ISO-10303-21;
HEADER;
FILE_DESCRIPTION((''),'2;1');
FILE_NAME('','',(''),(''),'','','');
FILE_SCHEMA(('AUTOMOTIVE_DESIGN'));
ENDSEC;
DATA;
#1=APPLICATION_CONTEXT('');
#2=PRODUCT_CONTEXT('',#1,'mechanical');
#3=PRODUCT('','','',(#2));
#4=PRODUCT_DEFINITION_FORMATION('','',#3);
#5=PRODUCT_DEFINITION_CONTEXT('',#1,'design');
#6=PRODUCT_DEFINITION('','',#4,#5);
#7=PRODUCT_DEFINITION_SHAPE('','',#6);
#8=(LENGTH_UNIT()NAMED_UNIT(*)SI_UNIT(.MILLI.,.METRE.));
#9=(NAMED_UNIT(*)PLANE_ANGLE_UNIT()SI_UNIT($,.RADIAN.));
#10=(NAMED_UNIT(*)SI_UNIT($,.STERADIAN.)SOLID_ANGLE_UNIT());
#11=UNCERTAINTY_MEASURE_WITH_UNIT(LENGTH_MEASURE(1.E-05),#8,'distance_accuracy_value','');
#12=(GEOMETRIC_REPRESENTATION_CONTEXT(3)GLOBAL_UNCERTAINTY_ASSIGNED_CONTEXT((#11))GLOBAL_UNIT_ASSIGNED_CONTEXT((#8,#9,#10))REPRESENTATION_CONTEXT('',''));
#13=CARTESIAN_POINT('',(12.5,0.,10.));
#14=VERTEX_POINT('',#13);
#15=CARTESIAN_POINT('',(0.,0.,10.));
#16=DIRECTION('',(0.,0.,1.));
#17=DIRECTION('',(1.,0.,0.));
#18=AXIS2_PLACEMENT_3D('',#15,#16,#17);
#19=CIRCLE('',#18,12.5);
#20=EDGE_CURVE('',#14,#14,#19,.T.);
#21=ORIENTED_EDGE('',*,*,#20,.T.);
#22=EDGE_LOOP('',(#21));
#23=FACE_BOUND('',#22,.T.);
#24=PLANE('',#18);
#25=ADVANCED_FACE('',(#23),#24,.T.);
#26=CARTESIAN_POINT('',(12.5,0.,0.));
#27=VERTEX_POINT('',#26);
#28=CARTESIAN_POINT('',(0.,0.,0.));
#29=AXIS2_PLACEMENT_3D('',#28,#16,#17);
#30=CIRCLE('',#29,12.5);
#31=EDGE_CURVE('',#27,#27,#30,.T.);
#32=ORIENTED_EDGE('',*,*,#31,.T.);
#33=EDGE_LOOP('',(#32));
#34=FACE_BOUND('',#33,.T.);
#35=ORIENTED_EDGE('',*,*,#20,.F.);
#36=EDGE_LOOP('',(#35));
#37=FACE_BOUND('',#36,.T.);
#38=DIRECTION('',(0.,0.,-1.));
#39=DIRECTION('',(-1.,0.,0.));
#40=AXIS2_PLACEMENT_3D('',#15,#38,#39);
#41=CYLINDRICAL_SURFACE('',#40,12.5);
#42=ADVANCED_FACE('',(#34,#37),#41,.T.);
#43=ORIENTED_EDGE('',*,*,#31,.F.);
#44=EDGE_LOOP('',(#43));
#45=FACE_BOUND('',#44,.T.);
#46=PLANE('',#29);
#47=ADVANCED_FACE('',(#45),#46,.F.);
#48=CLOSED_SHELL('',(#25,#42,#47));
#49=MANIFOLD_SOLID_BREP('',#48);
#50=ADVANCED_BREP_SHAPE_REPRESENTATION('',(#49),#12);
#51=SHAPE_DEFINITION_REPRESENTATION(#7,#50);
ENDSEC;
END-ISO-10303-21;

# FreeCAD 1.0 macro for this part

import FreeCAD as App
import Part
import Sketcher
Q = App.Units.Quantity

doc = App.newDocument("Part")
body = doc.addObject("PartDesign::Body", "Body")

# Sketch on XY plane
sketch1 = doc.addObject("Sketcher::SketchObject", "Sketch")
body.addObject(sketch1)
sketch1.AttachmentSupport = (doc.XY_Plane, [""])
sketch1.MapMode = "FlatFace"
sketch1.addGeometry(Part.Circle(App.Vector(0, 0, 0), App.Vector(0, 0, 1), 12.5), False)
sketch1.addConstraint([
    Sketcher.Constraint("Coincident", 0, 3, -1, 1),
    Sketcher.Constraint("Diameter", 0, Q("25 mm")),
])
pad1 = doc.addObject("PartDesign::Pad", "Pad")
body.addObject(pad1)
pad1.Profile = sketch1
pad1.Length = 10

doc.recompute()
